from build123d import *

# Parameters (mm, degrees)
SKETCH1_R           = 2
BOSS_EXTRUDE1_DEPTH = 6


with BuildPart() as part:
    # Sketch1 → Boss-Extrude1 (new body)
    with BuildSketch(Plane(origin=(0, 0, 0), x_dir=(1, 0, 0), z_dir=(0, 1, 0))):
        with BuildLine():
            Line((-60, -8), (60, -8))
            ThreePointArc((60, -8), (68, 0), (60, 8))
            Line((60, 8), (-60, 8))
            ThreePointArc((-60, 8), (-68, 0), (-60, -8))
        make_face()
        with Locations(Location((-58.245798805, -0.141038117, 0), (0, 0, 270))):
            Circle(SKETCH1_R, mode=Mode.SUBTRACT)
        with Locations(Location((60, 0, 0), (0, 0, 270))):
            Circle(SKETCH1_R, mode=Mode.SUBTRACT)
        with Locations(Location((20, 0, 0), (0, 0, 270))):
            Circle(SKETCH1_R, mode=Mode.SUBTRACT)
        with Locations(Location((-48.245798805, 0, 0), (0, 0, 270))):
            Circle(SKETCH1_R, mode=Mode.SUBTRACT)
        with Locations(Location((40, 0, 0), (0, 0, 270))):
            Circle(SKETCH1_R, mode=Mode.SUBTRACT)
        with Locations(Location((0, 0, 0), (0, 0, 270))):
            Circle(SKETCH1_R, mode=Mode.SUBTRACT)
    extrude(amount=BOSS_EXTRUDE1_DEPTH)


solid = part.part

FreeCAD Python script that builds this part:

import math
import FreeCAD as App
import Part
import Sketcher

V = App.Vector
Q = App.Units.Quantity

doc = App.newDocument("Part")
body = doc.addObject("PartDesign::Body", "Body")

# Sketch on XZ plane
sketch1 = doc.addObject("Sketcher::SketchObject", "Sketch")
body.addObject(sketch1)
sketch1.AttachmentSupport = (doc.XZ_Plane, [""])
sketch1.MapMode = "FlatFace"
sketch1.addGeometry(Part.LineSegment(V(-60, 8, 0), V(60, 8, 0)), False)
sketch1.addGeometry(Part.ArcOfCircle(Part.Circle(V(60, 0, 0), V(0, 0, 1), 8), math.radians(-90), math.radians(90)), False)
sketch1.addGeometry(Part.LineSegment(V(60, -8, 0), V(-60, -8, 0)), False)
sketch1.addGeometry(Part.ArcOfCircle(Part.Circle(V(-60, 0, 0), V(0, 0, 1), 8), math.radians(90), math.radians(270)), False)
sketch1.addGeometry(Part.Circle(V(-58.2, 0.1, 0), V(0, 0, 1), 2), False)
sketch1.addGeometry(Part.Circle(V(-48.2, 0, 0), V(0, 0, 1), 2), False)
sketch1.addGeometry(Part.Circle(V(0, 0, 0), V(0, 0, 1), 2), False)
sketch1.addGeometry(Part.Circle(V(20, 0, 0), V(0, 0, 1), 2), False)
sketch1.addGeometry(Part.Circle(V(40, 0, 0), V(0, 0, 1), 2), False)
sketch1.addGeometry(Part.Circle(V(60, 0, 0), V(0, 0, 1), 2), False)
sketch1.addConstraint(Sketcher.Constraint("Tangent", 0, 2, 1, 2))
sketch1.addConstraint(Sketcher.Constraint("Tangent", 1, 1, 2, 1))
sketch1.addConstraint(Sketcher.Constraint("Tangent", 2, 2, 3, 2))
sketch1.addConstraint(Sketcher.Constraint("Tangent", 3, 1, 0, 1))
sketch1.addConstraint(Sketcher.Constraint("Horizontal", 0))
sketch1.addConstraint(Sketcher.Constraint("Horizontal", 2))
sketch1.addConstraint(Sketcher.Constraint("Coincident", 6, 3, -1, 1))
sketch1.addConstraint(Sketcher.Constraint("Coincident", 9, 3, 1, 3))
sketch1.addConstraint(Sketcher.Constraint("Equal", 4, 5))
sketch1.addConstraint(Sketcher.Constraint("Equal", 5, 6))
sketch1.addConstraint(Sketcher.Constraint("Equal", 6, 7))
sketch1.addConstraint(Sketcher.Constraint("Equal", 7, 8))
sketch1.addConstraint(Sketcher.Constraint("Equal", 8, 9))
sketch1.addConstraint(Sketcher.Constraint("Symmetric", 1, 3, 3, 3, -1, 1))
sketch1.addConstraint(Sketcher.Constraint("PointOnObject", 5, 3, -1))
sketch1.addConstraint(Sketcher.Constraint("PointOnObject", 7, 3, -1))
sketch1.addConstraint(Sketcher.Constraint("PointOnObject", 8, 3, -1))
sketch1.addConstraint(Sketcher.Constraint("Diameter", 4, Q("4 mm")))
sketch1.addConstraint(Sketcher.Constraint("Radius", 1, Q("8 mm")))
sketch1.addConstraint(Sketcher.Constraint("DistanceX", 0, 1, 0, 2, Q("120 mm")))
sketch1.addConstraint(Sketcher.Constraint("DistanceX", -1, 1, 7, 3, Q("20 mm")))
sketch1.addConstraint(Sketcher.Constraint("DistanceX", -1, 1, 8, 3, Q("40 mm")))
sketch1.addConstraint(Sketcher.Constraint("DistanceX", 4, 3, 5, 3, Q("10 mm")))
sketch1.addConstraint(Sketcher.Constraint("DistanceX", 4, 3, -1, 1, Q("58.245799 mm")))
sketch1.addConstraint(Sketcher.Constraint("DistanceY", -1, 1, 4, 3, Q("0.141038 mm")))
pad1 = doc.addObject("PartDesign::Pad", "Pad")
body.addObject(pad1)
pad1.Profile = sketch1
pad1.Length = 6
pad1.Reversed = True

doc.recompute()
